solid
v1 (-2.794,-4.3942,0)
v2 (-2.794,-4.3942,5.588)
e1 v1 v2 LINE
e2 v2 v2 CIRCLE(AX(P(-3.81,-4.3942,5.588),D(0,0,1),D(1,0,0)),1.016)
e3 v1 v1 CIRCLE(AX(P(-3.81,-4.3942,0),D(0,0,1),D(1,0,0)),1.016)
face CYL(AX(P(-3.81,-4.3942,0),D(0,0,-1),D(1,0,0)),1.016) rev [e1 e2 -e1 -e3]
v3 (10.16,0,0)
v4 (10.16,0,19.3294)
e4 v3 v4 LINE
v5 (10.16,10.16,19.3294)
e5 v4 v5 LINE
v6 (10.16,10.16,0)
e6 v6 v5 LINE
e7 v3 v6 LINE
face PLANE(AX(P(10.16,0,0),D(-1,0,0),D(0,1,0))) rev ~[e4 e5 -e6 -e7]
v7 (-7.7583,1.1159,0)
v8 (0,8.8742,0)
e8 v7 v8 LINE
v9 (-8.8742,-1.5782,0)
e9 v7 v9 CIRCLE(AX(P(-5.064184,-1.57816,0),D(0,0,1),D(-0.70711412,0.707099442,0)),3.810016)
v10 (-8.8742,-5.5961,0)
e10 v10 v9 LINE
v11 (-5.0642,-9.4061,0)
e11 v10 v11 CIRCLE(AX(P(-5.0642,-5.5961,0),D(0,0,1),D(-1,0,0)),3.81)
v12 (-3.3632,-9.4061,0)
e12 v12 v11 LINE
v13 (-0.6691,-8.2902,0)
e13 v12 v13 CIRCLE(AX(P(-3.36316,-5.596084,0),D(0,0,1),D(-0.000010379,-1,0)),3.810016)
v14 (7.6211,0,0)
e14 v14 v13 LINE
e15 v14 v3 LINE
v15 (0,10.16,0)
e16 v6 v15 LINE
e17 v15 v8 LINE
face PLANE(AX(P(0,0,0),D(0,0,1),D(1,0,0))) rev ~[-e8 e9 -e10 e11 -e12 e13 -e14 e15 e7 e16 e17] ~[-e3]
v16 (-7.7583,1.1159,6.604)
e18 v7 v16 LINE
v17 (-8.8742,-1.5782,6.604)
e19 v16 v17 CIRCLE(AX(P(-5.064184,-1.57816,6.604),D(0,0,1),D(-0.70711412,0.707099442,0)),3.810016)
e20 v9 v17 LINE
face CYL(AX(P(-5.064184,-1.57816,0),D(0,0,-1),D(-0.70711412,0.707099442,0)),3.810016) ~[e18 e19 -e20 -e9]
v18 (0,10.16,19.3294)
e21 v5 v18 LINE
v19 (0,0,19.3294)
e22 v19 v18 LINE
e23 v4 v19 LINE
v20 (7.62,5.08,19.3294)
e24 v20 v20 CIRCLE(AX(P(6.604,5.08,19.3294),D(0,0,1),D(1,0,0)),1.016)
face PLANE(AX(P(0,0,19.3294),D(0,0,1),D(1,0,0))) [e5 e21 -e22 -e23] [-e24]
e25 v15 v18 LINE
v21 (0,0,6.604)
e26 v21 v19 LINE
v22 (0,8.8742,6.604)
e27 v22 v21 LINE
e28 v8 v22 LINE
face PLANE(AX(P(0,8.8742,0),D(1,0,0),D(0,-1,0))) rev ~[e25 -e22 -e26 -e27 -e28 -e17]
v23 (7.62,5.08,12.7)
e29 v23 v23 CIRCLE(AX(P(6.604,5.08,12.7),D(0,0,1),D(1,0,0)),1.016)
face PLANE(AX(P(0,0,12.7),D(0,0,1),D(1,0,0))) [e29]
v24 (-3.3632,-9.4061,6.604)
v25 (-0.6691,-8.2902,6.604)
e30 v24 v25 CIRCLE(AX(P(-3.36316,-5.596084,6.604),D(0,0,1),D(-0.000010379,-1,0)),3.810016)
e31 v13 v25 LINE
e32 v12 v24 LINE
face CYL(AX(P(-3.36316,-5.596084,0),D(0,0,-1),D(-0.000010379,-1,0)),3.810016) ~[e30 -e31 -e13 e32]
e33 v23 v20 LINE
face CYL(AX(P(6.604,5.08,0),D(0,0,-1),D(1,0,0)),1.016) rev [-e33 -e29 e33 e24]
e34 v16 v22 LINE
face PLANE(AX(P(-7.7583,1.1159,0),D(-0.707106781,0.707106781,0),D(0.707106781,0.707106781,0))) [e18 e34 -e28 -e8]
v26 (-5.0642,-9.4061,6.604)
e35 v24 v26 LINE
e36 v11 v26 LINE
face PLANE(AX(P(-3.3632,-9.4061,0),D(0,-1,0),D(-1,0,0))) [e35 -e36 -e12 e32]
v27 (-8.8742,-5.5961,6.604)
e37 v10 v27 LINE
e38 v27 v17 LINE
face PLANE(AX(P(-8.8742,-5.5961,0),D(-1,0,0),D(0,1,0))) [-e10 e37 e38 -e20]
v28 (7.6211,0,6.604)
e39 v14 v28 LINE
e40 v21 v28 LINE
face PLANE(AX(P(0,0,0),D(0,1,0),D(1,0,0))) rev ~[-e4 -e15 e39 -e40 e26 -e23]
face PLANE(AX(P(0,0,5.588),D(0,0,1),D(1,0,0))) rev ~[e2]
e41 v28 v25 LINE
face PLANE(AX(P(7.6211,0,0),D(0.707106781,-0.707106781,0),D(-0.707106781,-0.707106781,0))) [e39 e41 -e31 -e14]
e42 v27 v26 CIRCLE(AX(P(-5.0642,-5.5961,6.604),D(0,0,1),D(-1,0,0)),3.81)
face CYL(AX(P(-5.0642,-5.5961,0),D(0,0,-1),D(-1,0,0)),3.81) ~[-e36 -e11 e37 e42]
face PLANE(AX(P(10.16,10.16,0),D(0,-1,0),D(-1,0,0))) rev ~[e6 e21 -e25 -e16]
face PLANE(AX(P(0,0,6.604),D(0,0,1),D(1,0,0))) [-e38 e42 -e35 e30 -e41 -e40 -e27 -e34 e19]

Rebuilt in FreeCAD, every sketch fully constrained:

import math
import FreeCAD as App
import Part
import Sketcher
from FreeCAD import Vector
Q = App.Units.Quantity

doc = App.newDocument("Part")
body = doc.addObject("PartDesign::Body", "Body")

sketch1 = body.newObject("Sketcher::SketchObject", "Sketch")
sketch1.AttachmentSupport = (doc.getObject("XY_Plane"), [""])
sketch1.MapMode = "FlatFace"
sketch1.addGeometry(Part.LineSegment(Vector(0, 10.16, 0), Vector(0, 0, 0)), False)
sketch1.addGeometry(Part.LineSegment(Vector(0, 0, 0), Vector(10.16, 0, 0)), False)
sketch1.addGeometry(Part.LineSegment(Vector(10.16, 0, 0), Vector(10.16, 10.16, 0)), False)
sketch1.addGeometry(Part.LineSegment(Vector(10.16, 10.16, 0), Vector(0, 10.16, 0)), False)
sketch1.addGeometry(Part.Circle(Vector(6.604, 5.08, 0), Vector(0, 0, 1), 1.016), False)
sketch1.addConstraint(Sketcher.Constraint("Coincident", 0, 2, 1, 1))
sketch1.addConstraint(Sketcher.Constraint("Coincident", 1, 2, 2, 1))
sketch1.addConstraint(Sketcher.Constraint("Coincident", 2, 2, 3, 1))
sketch1.addConstraint(Sketcher.Constraint("Coincident", 3, 2, 0, 1))
sketch1.addConstraint(Sketcher.Constraint("Vertical", 0))
sketch1.addConstraint(Sketcher.Constraint("Horizontal", 1))
sketch1.addConstraint(Sketcher.Constraint("Vertical", 2))
sketch1.addConstraint(Sketcher.Constraint("Horizontal", 3))
sketch1.addConstraint(Sketcher.Constraint("Coincident", 0, 2, -1, 1))
sketch1.addConstraint(Sketcher.Constraint("Equal", 3, 0))
sketch1.addConstraint(Sketcher.Constraint("Diameter", 4, Q("0.08 in")))
sketch1.addConstraint(Sketcher.Constraint("DistanceX", 1, 1, 1, 2, Q("0.4 in")))
sketch1.addConstraint(Sketcher.Constraint("DistanceY", -1, 1, 4, 3, Q("0.2 in")))
sketch1.addConstraint(Sketcher.Constraint("DistanceX", 4, 3, 1, 2, Q("0.14 in")))
pad1 = body.newObject("PartDesign::Pad", "Pad")
pad1.Profile = sketch1
pad1.Length = Q("0.761 in")

sketch2 = body.newObject("Sketcher::SketchObject", "Sketch001")
sketch2.AttachmentSupport = (doc.getObject("XY_Plane"), [""])
sketch2.MapMode = "FlatFace"
sketch2.addGeometry(Part.LineSegment(Vector(7.6211, 0, 0), Vector(0, 0, 0)), False)
sketch2.addGeometry(Part.LineSegment(Vector(0, 0, 0), Vector(0, 8.8742, 0)), False)
sketch2.addGeometry(Part.LineSegment(Vector(0, 8.8742, 0), Vector(-7.7583, 1.1159, 0)), False)
sketch2.addGeometry(Part.ArcOfCircle(Part.Circle(Vector(-5.0642, -1.5782, 0), Vector(0, 0, 1), 3.810033), math.radians(135), math.radians(180)), False)
sketch2.addGeometry(Part.LineSegment(Vector(-8.8742, -1.5782, 0), Vector(-8.8742, -5.5961, 0)), False)
sketch2.addGeometry(Part.ArcOfCircle(Part.Circle(Vector(-5.0642, -5.5961, 0), Vector(0, 0, 1), 3.81), math.radians(180), math.radians(270)), False)
sketch2.addGeometry(Part.LineSegment(Vector(-5.0642, -9.4061, 0), Vector(-3.3632, -9.4061, 0)), False)
sketch2.addGeometry(Part.ArcOfCircle(Part.Circle(Vector(-3.3632, -5.5961, 0), Vector(0, 0, 1), 3.81), math.radians(-90), math.radians(-45)), False)
sketch2.addGeometry(Part.LineSegment(Vector(-0.6691, -8.2902, 0), Vector(7.6211, 0, 0)), False)
sketch2.addGeometry(Part.Circle(Vector(-3.81, -4.3942, 0), Vector(0, 0, 1), 1.016), False)
sketch2.addConstraint(Sketcher.Constraint("Coincident", 0, 2, 1, 1))
sketch2.addConstraint(Sketcher.Constraint("Coincident", 1, 2, 2, 1))
sketch2.addConstraint(Sketcher.Constraint("Tangent", 2, 2, 3, 1))
sketch2.addConstraint(Sketcher.Constraint("Tangent", 3, 2, 4, 1))
sketch2.addConstraint(Sketcher.Constraint("Tangent", 4, 2, 5, 1))
sketch2.addConstraint(Sketcher.Constraint("Tangent", 5, 2, 6, 1))
sketch2.addConstraint(Sketcher.Constraint("Tangent", 6, 2, 7, 1))
sketch2.addConstraint(Sketcher.Constraint("Tangent", 7, 2, 8, 1))
sketch2.addConstraint(Sketcher.Constraint("Coincident", 8, 2, 0, 1))
sketch2.addConstraint(Sketcher.Constraint("Horizontal", 0))
sketch2.addConstraint(Sketcher.Constraint("Vertical", 1))
sketch2.addConstraint(Sketcher.Constraint("Vertical", 4))
sketch2.addConstraint(Sketcher.Constraint("Horizontal", 6))
sketch2.addConstraint(Sketcher.Constraint("Coincident", 0, 2, -1, 1))
sketch2.addConstraint(Sketcher.Constraint("Equal", 3, 5))
sketch2.addConstraint(Sketcher.Constraint("Equal", 5, 7))
sketch2.addConstraint(Sketcher.Constraint("Parallel", 2, 8))
sketch2.addConstraint(Sketcher.Constraint("Diameter", 9, Q("0.08 in")))
sketch2.addConstraint(Sketcher.Constraint("Radius", 3, Q("0.15 in")))
sketch2.addConstraint(Sketcher.Constraint("Angle", 2, Q("-135 deg")))
sketch2.addConstraint(Sketcher.Constraint("DistanceX", 9, 3, -1, 1, Q("0.15 in")))
sketch2.addConstraint(Sketcher.Constraint("DistanceY", 9, 3, -1, 1, Q("0.173 in")))
sketch2.addConstraint(Sketcher.Constraint("DistanceX", 0, 2, 0, 1, 7.621))
sketch2.addConstraint(Sketcher.Constraint("DistanceX", 6, 1, 6, 2, 1.701))
sketch2.addConstraint(Sketcher.Constraint("DistanceY", 1, 1, 1, 2, 8.8742))
sketch2.addConstraint(Sketcher.Constraint("DistanceX", 7, 3, -1, 1, Q("0.1324 in")))
pad2 = body.newObject("PartDesign::Pad", "Pad001")
pad2.Profile = sketch2
pad2.Length = Q("0.26 in")

sketch3 = body.newObject("Sketcher::SketchObject", "Sketch002")
sketch3.AttachmentSupport = (doc.getObject("XY_Plane"), [""])
sketch3.MapMode = "FlatFace"
sketch3.addGeometry(Part.Circle(Vector(-3.81, -4.3942, 0), Vector(0, 0, 1), 1.016), False)
sketch3.addConstraint(Sketcher.Constraint("Diameter", 0, Q("0.08 in")))
sketch3.addConstraint(Sketcher.Constraint("DistanceX", 0, 3, -1, 1, Q("0.15 in")))
sketch3.addConstraint(Sketcher.Constraint("DistanceY", 0, 3, -1, 1, Q("0.173 in")))
pad3 = body.newObject("PartDesign::Pad", "Pad002")
pad3.Profile = sketch3
pad3.Length = Q("0.26 in")

sketch4 = body.newObject("Sketcher::SketchObject", "Sketch003")
sketch4.AttachmentSupport = (doc.getObject("XY_Plane"), [""])
sketch4.MapMode = "FlatFace"
sketch4.addGeometry(Part.Circle(Vector(-3.81, -4.3942, 0), Vector(0, 0, 1), 1.016), False)
sketch4.addConstraint(Sketcher.Constraint("Diameter", 0, Q("0.08 in")))
sketch4.addConstraint(Sketcher.Constraint("DistanceX", 0, 3, -1, 1, Q("0.15 in")))
sketch4.addConstraint(Sketcher.Constraint("DistanceY", 0, 3, -1, 1, Q("0.173 in")))
pocket1 = body.newObject("PartDesign::Pocket", "Pocket")
pocket1.Profile = sketch4
pocket1.Length = Q("0.22 in")
pocket1.Reversed = True

sketch5 = body.newObject("Sketcher::SketchObject", "Sketch004")
sketch5.AttachmentSupport = (doc.getObject("XY_Plane"), [""])
sketch5.MapMode = "FlatFace"
sketch5.addGeometry(Part.Circle(Vector(6.604, 5.08, 0), Vector(0, 0, 1), 1.016), False)
sketch5.addConstraint(Sketcher.Constraint("Diameter", 0, Q("0.08 in")))
sketch5.addConstraint(Sketcher.Constraint("DistanceY", -1, 1, 0, 3, Q("0.2 in")))
sketch5.addConstraint(Sketcher.Constraint("DistanceX", -1, 1, 0, 3, Q("0.26 in")))
pad4 = body.newObject("PartDesign::Pad", "Pad003")
pad4.Profile = sketch5
pad4.Length = Q("0.5 in")

doc.recompute()
